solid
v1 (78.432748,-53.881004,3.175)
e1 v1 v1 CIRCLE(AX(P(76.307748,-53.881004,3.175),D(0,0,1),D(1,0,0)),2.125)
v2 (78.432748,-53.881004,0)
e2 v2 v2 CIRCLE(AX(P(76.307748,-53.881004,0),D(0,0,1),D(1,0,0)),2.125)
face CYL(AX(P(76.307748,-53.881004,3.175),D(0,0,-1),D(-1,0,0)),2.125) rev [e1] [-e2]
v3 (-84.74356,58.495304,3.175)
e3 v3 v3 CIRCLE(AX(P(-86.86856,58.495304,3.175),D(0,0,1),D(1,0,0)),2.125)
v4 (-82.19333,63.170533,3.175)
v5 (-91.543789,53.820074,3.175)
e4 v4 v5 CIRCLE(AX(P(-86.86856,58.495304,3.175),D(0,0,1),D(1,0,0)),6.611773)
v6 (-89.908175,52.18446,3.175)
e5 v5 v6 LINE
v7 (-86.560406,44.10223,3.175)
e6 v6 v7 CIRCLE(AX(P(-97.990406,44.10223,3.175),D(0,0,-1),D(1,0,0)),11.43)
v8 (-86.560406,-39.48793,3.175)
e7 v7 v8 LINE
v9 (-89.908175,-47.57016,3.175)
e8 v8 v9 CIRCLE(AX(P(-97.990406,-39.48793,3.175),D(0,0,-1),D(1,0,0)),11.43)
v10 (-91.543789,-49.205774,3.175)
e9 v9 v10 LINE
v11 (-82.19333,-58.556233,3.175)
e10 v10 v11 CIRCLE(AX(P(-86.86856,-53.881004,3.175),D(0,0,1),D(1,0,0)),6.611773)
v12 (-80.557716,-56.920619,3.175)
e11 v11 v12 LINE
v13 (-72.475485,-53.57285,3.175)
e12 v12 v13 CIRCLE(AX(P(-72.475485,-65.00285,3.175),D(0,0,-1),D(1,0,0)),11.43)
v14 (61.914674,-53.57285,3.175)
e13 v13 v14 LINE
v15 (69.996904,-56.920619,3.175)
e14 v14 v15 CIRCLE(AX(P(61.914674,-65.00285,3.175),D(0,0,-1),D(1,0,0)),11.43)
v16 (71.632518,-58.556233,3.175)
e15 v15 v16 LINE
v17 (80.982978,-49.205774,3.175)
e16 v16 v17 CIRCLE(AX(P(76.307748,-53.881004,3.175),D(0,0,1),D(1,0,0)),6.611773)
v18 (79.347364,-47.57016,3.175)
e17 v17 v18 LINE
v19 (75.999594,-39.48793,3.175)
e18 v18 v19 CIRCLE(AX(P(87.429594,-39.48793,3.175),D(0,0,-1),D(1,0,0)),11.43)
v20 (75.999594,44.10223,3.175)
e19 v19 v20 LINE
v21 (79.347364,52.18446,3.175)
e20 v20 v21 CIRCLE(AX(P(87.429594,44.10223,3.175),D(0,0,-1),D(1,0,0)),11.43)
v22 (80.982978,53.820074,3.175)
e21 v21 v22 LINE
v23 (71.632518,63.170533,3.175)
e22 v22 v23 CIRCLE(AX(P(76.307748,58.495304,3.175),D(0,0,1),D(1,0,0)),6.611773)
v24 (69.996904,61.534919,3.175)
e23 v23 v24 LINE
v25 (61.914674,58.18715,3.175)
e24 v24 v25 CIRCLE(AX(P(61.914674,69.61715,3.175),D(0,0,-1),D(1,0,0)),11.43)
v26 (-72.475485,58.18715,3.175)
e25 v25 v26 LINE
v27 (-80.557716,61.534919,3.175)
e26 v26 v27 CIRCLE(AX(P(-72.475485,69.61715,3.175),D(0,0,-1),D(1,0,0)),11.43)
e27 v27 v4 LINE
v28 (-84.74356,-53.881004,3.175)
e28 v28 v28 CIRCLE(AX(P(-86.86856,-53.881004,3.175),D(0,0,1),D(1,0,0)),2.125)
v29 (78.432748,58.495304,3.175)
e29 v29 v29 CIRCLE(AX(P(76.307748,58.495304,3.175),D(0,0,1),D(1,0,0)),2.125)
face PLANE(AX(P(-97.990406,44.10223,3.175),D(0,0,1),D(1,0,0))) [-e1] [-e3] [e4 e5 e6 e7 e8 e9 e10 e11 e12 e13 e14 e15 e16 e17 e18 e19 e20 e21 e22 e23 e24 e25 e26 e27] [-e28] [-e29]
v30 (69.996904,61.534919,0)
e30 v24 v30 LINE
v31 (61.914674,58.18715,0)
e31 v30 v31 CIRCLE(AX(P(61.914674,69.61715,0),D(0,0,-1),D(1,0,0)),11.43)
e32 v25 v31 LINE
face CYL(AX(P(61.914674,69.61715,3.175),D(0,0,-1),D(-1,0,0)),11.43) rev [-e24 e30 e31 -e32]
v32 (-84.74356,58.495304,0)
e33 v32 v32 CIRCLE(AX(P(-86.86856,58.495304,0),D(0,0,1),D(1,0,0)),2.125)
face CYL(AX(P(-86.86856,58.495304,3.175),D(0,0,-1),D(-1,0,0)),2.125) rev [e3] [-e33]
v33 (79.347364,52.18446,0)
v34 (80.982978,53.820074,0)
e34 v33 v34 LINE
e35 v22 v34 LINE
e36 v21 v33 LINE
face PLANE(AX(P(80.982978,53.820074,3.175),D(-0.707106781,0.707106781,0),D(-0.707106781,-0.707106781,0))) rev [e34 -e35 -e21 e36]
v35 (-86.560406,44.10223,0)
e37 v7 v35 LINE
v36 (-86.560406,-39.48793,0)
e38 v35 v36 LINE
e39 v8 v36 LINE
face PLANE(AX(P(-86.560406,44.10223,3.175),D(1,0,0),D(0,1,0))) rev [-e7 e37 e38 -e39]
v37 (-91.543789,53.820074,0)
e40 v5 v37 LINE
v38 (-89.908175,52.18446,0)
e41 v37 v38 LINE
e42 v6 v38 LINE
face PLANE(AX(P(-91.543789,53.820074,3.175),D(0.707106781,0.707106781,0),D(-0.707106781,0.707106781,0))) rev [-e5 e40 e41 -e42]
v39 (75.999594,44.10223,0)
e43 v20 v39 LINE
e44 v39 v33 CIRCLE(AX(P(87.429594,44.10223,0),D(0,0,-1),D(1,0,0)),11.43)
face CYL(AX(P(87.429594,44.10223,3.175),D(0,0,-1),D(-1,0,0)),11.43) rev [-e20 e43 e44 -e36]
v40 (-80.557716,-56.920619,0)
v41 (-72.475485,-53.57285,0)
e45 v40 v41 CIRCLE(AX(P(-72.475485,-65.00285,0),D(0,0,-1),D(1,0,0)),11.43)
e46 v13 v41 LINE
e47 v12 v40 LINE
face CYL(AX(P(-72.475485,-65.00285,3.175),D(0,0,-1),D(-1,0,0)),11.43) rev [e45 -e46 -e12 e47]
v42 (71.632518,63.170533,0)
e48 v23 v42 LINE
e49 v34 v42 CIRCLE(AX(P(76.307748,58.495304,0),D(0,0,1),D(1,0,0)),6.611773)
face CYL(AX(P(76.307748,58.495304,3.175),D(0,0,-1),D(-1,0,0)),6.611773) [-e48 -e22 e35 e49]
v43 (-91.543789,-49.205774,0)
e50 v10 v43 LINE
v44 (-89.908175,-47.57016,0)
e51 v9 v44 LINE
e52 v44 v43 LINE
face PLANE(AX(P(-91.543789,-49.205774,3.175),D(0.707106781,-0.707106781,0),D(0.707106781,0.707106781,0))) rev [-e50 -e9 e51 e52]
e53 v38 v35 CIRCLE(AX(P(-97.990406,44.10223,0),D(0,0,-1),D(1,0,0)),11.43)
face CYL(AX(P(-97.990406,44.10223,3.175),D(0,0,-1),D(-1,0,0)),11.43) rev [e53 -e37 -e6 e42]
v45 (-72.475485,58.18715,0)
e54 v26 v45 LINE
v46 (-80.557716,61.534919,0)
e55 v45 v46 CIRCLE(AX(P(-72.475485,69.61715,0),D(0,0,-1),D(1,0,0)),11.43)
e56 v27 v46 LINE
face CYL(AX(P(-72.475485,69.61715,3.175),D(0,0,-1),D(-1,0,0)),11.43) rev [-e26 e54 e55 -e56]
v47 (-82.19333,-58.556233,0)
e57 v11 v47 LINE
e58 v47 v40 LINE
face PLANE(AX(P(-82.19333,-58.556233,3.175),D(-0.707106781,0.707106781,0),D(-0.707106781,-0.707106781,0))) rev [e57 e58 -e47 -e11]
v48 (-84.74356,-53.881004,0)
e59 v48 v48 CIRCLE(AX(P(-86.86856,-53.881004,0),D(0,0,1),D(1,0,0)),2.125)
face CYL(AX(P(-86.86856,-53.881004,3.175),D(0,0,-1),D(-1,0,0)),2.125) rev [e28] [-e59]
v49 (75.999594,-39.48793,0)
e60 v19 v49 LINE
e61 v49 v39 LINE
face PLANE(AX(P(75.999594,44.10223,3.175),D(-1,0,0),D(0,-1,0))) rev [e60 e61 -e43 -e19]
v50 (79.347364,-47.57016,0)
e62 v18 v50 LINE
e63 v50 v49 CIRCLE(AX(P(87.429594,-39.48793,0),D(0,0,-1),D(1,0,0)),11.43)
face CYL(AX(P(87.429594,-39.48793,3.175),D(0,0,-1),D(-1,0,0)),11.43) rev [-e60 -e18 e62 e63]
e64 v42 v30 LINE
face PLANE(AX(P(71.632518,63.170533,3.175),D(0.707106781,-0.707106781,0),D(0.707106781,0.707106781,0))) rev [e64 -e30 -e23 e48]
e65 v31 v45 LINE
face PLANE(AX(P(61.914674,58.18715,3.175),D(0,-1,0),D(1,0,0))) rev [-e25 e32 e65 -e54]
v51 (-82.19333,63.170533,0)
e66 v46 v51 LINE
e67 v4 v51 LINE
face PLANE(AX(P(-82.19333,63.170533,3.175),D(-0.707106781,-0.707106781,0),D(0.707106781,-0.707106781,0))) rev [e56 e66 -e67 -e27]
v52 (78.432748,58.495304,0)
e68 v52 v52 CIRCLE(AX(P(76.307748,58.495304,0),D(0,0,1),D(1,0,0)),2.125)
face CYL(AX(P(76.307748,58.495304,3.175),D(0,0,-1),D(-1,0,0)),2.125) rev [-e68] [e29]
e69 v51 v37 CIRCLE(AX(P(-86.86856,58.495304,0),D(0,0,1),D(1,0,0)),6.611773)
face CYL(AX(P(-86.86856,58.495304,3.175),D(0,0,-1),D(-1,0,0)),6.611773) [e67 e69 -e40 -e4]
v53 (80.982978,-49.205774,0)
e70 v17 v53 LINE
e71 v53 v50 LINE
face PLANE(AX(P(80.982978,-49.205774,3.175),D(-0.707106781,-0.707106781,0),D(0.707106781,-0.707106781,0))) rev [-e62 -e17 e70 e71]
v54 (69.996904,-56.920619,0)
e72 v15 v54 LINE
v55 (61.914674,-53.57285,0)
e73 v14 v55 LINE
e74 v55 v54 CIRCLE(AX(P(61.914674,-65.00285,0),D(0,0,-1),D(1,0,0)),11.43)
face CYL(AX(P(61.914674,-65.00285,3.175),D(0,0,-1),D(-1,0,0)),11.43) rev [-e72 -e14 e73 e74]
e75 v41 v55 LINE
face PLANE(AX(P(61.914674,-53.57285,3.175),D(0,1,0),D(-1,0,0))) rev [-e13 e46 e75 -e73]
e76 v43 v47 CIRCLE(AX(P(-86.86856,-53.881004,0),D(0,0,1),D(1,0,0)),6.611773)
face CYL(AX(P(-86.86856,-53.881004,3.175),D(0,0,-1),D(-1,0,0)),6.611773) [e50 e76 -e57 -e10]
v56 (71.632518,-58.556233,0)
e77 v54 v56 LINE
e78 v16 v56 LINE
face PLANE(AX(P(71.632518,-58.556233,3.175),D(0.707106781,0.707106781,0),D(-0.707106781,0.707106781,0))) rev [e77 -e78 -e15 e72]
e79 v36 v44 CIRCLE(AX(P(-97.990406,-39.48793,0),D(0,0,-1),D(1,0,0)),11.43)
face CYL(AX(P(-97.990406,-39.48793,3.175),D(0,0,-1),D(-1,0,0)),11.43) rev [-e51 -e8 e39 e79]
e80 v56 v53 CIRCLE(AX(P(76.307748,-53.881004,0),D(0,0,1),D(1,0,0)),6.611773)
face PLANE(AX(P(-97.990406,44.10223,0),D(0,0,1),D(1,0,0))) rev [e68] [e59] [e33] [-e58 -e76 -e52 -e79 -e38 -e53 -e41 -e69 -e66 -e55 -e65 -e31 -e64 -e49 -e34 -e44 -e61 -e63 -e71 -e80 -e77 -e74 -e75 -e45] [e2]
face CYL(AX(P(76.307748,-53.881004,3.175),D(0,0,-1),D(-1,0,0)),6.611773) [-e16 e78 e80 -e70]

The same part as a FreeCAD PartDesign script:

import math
import FreeCAD as App
import Part
import Sketcher
from FreeCAD import Vector
Q = App.Units.Quantity

doc = App.newDocument("Part")
body = doc.addObject("PartDesign::Body", "Body")

# Sketch on XY plane
sketch1 = body.newObject("Sketcher::SketchObject", "Sketch")
sketch1.AttachmentSupport = (doc.getObject("XY_Plane"), [""])
sketch1.MapMode = "FlatFace"
sketch1.addGeometry([
    Part.LineSegment(Vector(-86.6, 44.1, 0), Vector(-86.6, -39.5, 0)),  # 0
    Part.ArcOfCircle(Part.Circle(Vector(-98, -39.5, 0), Vector(0, 0, 1), 11.4), math.radians(-45), math.radians(0)),  # 1
    Part.LineSegment(Vector(-89.9, -47.6, 0), Vector(-91.5, -49.2, 0)),  # 2
    Part.ArcOfCircle(Part.Circle(Vector(-86.9, -53.9, 0), Vector(0, 0, 1), 6.6), math.radians(135), math.radians(315)),  # 3
    Part.LineSegment(Vector(-82.2, -58.6, 0), Vector(-80.6, -56.9, 0)),  # 4
    Part.ArcOfCircle(Part.Circle(Vector(-72.5, -65, 0), Vector(0, 0, 1), 11.4), math.radians(90), math.radians(135)),  # 5
    Part.LineSegment(Vector(-72.5, -53.6, 0), Vector(61.9, -53.6, 0)),  # 6
    Part.ArcOfCircle(Part.Circle(Vector(61.9, -65, 0), Vector(0, 0, 1), 11.4), math.radians(45), math.radians(90)),  # 7
    Part.LineSegment(Vector(70, -56.9, 0), Vector(71.6, -58.6, 0)),  # 8
    Part.ArcOfCircle(Part.Circle(Vector(76.3, -53.9, 0), Vector(0, 0, 1), 6.6), math.radians(-135), math.radians(45)),  # 9
    Part.LineSegment(Vector(81, -49.2, 0), Vector(79.3, -47.6, 0)),  # 10
    Part.ArcOfCircle(Part.Circle(Vector(87.4, -39.5, 0), Vector(0, 0, 1), 11.4), math.radians(180), math.radians(225)),  # 11
    Part.LineSegment(Vector(76, -39.5, 0), Vector(76, 44.1, 0)),  # 12
    Part.ArcOfCircle(Part.Circle(Vector(87.4, 44.1, 0), Vector(0, 0, 1), 11.4), math.radians(135), math.radians(180)),  # 13
    Part.LineSegment(Vector(79.3, 52.2, 0), Vector(81, 53.8, 0)),  # 14
    Part.ArcOfCircle(Part.Circle(Vector(76.3, 58.5, 0), Vector(0, 0, 1), 6.6), math.radians(-45), math.radians(135)),  # 15
    Part.LineSegment(Vector(71.6, 63.2, 0), Vector(70, 61.5, 0)),  # 16
    Part.ArcOfCircle(Part.Circle(Vector(61.9, 69.6, 0), Vector(0, 0, 1), 11.4), math.radians(-90), math.radians(-45)),  # 17
    Part.LineSegment(Vector(61.9, 58.2, 0), Vector(-72.5, 58.2, 0)),  # 18
    Part.ArcOfCircle(Part.Circle(Vector(-72.5, 69.6, 0), Vector(0, 0, 1), 11.4), math.radians(-135), math.radians(-90)),  # 19
    Part.LineSegment(Vector(-80.6, 61.5, 0), Vector(-82.2, 63.2, 0)),  # 20
    Part.ArcOfCircle(Part.Circle(Vector(-86.9, 58.5, 0), Vector(0, 0, 1), 6.6), math.radians(45), math.radians(225)),  # 21
    Part.LineSegment(Vector(-91.5, 53.8, 0), Vector(-89.9, 52.2, 0)),  # 22
    Part.ArcOfCircle(Part.Circle(Vector(-98, 44.1, 0), Vector(0, 0, 1), 11.4), math.radians(0), math.radians(45)),  # 23
    Part.Circle(Vector(-86.9, -53.9, 0), Vector(0, 0, 1), 2.1),  # 24
    Part.Circle(Vector(76.3, -53.9, 0), Vector(0, 0, 1), 2.1),  # 25
    Part.Circle(Vector(-86.9, 58.5, 0), Vector(0, 0, 1), 2.1),  # 26
    Part.Circle(Vector(76.3, 58.5, 0), Vector(0, 0, 1), 2.1),  # 27
], False)
sketch1.addConstraint([
    Sketcher.Constraint("Tangent", 0, 2, 1, 2),
    Sketcher.Constraint("Tangent", 1, 1, 2, 1),
    Sketcher.Constraint("Tangent", 2, 2, 3, 1),
    Sketcher.Constraint("Tangent", 3, 2, 4, 1),
    Sketcher.Constraint("Tangent", 4, 2, 5, 2),
    Sketcher.Constraint("Tangent", 5, 1, 6, 1),
    Sketcher.Constraint("Tangent", 6, 2, 7, 2),
    Sketcher.Constraint("Tangent", 7, 1, 8, 1),
    Sketcher.Constraint("Tangent", 8, 2, 9, 1),
    Sketcher.Constraint("Tangent", 9, 2, 10, 1),
    Sketcher.Constraint("Tangent", 10, 2, 11, 2),
    Sketcher.Constraint("Tangent", 11, 1, 12, 1),
    Sketcher.Constraint("Tangent", 12, 2, 13, 2),
    Sketcher.Constraint("Tangent", 13, 1, 14, 1),
    Sketcher.Constraint("Tangent", 14, 2, 15, 1),
    Sketcher.Constraint("Tangent", 15, 2, 16, 1),
    Sketcher.Constraint("Tangent", 16, 2, 17, 2),
    Sketcher.Constraint("Tangent", 17, 1, 18, 1),
    Sketcher.Constraint("Tangent", 18, 2, 19, 2),
    Sketcher.Constraint("Tangent", 19, 1, 20, 1),
    Sketcher.Constraint("Tangent", 20, 2, 21, 1),
    Sketcher.Constraint("Tangent", 21, 2, 22, 1),
    Sketcher.Constraint("Tangent", 22, 2, 23, 2),
    Sketcher.Constraint("Tangent", 23, 1, 0, 1),
    Sketcher.Constraint("Vertical", 0),
    Sketcher.Constraint("Horizontal", 6),
    Sketcher.Constraint("Vertical", 12),
    Sketcher.Constraint("Horizontal", 18),
    Sketcher.Constraint("Coincident", 24, 3, 3, 3),
    Sketcher.Constraint("Coincident", 25, 3, 9, 3),
    Sketcher.Constraint("Coincident", 26, 3, 21, 3),
    Sketcher.Constraint("Coincident", 27, 3, 15, 3),
    Sketcher.Constraint("Equal", 1, 5),
    Sketcher.Constraint("Equal", 5, 7),
    Sketcher.Constraint("Equal", 3, 9),
    Sketcher.Constraint("Equal", 7, 11),
    Sketcher.Constraint("Equal", 11, 13),
    Sketcher.Constraint("Equal", 9, 15),
    Sketcher.Constraint("Equal", 13, 17),
    Sketcher.Constraint("Equal", 17, 19),
    Sketcher.Constraint("Equal", 15, 21),
    Sketcher.Constraint("Equal", 19, 23),
    Sketcher.Constraint("Equal", 24, 25),
    Sketcher.Constraint("Equal", 25, 26),
    Sketcher.Constraint("Equal", 26, 27),
    Sketcher.Constraint("Parallel", 2, 4),
    Sketcher.Constraint("Perpendicular", 4, 8),
    Sketcher.Constraint("Parallel", 8, 10),
    Sketcher.Constraint("Perpendicular", 10, 14),
    Sketcher.Constraint("Parallel", 14, 16),
    Sketcher.Constraint("Perpendicular", 16, 20),
    Sketcher.Constraint("Parallel", 20, 22),
    Sketcher.Constraint("Horizontal", 3, 3, 9, 3),
    Sketcher.Constraint("Horizontal", 1, 3, 11, 3),
    Sketcher.Constraint("Horizontal", 15, 3, 21, 3),
    Sketcher.Constraint("Horizontal", 13, 3, 23, 3),
    Sketcher.Constraint("Horizontal", 4, 2, 7, 1),
    Sketcher.Constraint("Vertical", 9, 3, 15, 3),
    Sketcher.Constraint("Vertical", 7, 3, 17, 3),
    Sketcher.Constraint("Equal", 2, 4),
    Sketcher.Constraint("Radius", 1, Q("0.45 in")),
    Sketcher.Constraint("DistanceX", 1, 3, 11, 3, Q("7.3 in")),
    Sketcher.Constraint("DistanceY", 7, 3, 17, 3, Q("5.3 in")),
    Sketcher.Constraint("Diameter", 24, 4.25),
    Sketcher.Constraint("Radius", 3, 6.611773),
    Sketcher.Constraint("DistanceY", 1, 3, -1, 1, 39.48793),
    Sketcher.Constraint("DistanceX", 3, 3, -1, 1, 86.86856),
    Sketcher.Constraint("DistanceX", -1, 1, 8, 2, 71.632518),
])
pad1 = body.newObject("PartDesign::Pad", "Pad")
pad1.Profile = sketch1
pad1.Length = Q("0.125 in")

doc.recompute()
